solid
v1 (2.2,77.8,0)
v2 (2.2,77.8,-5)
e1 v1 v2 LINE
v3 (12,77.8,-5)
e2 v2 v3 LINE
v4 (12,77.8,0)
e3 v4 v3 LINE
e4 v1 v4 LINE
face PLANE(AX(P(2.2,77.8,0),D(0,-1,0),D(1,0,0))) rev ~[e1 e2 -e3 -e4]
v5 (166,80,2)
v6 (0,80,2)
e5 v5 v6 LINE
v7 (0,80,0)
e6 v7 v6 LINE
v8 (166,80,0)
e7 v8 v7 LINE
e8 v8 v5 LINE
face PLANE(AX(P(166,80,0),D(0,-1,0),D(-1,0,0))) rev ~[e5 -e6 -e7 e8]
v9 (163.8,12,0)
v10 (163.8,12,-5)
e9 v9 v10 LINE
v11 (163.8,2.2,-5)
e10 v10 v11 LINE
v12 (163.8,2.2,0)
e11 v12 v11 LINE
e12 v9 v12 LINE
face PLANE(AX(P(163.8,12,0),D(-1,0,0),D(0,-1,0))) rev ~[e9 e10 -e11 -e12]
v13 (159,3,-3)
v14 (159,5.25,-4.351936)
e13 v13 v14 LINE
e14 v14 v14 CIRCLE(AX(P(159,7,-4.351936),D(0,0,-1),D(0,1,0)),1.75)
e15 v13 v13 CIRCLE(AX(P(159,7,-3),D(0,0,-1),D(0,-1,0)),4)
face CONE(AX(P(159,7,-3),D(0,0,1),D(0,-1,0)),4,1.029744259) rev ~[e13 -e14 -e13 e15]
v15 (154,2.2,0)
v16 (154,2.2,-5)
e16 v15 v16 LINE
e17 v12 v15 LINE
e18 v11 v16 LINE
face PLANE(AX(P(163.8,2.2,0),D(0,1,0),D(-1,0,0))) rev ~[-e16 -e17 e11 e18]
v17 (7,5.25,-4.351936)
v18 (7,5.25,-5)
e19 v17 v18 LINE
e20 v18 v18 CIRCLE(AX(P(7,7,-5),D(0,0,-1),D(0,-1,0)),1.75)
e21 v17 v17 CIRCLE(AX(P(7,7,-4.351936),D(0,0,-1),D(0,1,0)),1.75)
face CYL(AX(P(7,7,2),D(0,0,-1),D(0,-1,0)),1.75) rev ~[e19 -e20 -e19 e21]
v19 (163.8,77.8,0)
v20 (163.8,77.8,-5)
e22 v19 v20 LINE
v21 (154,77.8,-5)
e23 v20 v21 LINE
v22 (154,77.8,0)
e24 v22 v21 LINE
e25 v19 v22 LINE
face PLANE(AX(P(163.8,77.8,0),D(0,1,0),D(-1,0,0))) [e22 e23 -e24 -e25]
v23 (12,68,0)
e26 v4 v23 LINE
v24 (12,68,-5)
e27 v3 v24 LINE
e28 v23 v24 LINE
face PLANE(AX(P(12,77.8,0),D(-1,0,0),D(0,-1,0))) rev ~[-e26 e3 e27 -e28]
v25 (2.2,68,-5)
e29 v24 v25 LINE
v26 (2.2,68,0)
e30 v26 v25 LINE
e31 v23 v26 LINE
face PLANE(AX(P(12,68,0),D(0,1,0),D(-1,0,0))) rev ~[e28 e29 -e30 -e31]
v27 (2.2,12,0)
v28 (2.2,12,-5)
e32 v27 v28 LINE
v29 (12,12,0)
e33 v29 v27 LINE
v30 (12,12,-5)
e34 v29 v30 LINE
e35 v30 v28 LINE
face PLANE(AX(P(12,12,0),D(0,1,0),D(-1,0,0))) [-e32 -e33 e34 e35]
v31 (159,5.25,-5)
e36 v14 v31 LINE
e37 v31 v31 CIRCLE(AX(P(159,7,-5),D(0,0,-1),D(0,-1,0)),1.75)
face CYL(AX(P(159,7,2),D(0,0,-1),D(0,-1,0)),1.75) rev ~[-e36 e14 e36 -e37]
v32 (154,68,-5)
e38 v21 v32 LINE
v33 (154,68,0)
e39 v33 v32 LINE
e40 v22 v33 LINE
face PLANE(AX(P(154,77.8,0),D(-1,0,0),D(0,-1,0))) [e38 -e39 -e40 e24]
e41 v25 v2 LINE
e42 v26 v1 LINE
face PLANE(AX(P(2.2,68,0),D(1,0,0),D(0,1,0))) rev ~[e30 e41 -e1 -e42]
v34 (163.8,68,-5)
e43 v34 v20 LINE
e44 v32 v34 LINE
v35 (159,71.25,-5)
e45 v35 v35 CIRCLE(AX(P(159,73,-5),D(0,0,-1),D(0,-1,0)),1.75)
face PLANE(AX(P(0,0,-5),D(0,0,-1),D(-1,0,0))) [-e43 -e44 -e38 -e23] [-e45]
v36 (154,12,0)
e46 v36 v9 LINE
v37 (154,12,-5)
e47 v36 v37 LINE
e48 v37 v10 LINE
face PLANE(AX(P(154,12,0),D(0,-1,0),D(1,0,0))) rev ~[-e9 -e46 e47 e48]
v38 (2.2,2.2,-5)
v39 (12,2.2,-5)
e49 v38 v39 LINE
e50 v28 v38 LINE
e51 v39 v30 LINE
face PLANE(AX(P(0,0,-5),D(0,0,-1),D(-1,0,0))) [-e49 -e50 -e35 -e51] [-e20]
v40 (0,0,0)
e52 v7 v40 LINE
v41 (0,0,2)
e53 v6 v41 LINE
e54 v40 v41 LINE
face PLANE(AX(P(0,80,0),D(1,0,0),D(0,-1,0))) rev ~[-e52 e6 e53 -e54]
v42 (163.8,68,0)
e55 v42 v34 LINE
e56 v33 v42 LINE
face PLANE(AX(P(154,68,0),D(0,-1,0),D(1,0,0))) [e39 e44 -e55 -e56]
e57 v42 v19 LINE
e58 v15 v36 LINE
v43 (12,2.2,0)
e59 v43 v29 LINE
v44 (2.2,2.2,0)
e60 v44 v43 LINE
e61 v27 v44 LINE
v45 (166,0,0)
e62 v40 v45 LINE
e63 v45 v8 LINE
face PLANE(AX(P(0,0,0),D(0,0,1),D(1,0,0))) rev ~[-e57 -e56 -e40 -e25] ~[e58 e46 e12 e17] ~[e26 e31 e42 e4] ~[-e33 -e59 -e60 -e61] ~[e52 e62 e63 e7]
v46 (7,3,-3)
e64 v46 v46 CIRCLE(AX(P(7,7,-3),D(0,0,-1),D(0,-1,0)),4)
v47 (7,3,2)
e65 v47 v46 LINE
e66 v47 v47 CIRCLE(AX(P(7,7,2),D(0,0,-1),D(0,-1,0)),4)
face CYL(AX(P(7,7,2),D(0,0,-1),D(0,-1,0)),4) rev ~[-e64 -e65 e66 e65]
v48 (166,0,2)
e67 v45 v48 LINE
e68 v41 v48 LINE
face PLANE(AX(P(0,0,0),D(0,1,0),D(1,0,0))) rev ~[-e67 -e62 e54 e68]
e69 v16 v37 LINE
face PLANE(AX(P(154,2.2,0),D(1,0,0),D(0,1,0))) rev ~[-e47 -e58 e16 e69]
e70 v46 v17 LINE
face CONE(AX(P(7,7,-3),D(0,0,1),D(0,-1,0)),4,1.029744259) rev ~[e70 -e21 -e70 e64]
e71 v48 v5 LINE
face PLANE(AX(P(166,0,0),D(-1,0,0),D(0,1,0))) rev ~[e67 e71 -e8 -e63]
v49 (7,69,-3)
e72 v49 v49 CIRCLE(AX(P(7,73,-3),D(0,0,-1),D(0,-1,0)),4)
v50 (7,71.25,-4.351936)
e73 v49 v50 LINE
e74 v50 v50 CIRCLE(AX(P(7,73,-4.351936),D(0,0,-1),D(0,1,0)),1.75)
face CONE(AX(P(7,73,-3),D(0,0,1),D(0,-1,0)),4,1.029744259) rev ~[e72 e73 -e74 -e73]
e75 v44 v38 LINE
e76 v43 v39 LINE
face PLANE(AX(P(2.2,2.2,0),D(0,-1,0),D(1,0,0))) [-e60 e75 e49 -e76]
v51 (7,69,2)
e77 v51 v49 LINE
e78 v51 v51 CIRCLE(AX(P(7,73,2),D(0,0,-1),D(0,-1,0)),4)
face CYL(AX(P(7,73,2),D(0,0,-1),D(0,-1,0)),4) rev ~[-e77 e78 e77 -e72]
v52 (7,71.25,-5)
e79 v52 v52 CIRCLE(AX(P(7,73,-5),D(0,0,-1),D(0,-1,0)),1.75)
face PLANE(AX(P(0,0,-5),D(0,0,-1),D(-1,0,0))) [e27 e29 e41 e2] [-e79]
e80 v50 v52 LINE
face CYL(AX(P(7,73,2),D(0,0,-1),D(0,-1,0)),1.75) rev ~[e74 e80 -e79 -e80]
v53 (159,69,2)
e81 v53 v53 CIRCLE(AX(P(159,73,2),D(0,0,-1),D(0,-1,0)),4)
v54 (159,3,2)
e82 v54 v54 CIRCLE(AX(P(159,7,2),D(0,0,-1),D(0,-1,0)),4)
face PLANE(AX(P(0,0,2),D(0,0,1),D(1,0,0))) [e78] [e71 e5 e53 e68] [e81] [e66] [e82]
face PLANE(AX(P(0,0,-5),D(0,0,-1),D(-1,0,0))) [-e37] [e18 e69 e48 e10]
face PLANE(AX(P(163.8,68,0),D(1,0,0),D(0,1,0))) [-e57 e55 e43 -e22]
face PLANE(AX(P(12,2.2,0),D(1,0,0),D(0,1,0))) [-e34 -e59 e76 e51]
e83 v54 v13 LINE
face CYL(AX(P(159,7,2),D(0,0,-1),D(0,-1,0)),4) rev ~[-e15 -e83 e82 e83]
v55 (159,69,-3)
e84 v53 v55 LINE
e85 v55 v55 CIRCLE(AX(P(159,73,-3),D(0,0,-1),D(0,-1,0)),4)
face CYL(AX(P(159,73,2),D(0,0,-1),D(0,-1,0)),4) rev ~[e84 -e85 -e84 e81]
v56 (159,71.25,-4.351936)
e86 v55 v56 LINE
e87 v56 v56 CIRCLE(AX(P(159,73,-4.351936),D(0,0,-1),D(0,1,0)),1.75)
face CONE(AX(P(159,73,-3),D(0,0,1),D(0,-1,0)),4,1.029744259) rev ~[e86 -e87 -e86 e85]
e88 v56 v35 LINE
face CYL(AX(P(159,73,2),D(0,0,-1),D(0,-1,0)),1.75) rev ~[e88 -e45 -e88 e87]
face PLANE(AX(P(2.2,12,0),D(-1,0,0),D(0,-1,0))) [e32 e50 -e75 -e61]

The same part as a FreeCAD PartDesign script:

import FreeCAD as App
import Part
import Sketcher

V = App.Vector
Q = App.Units.Quantity

doc = App.newDocument("Part")
body = doc.addObject("PartDesign::Body", "Body")

sketch1 = doc.addObject("Sketcher::SketchObject", "Sketch")
body.addObject(sketch1)
sketch1.AttachmentSupport = (doc.XY_Plane, [""])
sketch1.MapMode = "FlatFace"
sketch1.addGeometry(Part.LineSegment(V(0, 80, 0), V(0, 0, 0)), False)
sketch1.addGeometry(Part.LineSegment(V(0, 0, 0), V(166, 0, 0)), False)
sketch1.addGeometry(Part.LineSegment(V(166, 0, 0), V(166, 80, 0)), False)
sketch1.addGeometry(Part.LineSegment(V(166, 80, 0), V(0, 80, 0)), False)
sketch1.addConstraint(Sketcher.Constraint("Coincident", 0, 2, 1, 1))
sketch1.addConstraint(Sketcher.Constraint("Coincident", 1, 2, 2, 1))
sketch1.addConstraint(Sketcher.Constraint("Coincident", 2, 2, 3, 1))
sketch1.addConstraint(Sketcher.Constraint("Coincident", 3, 2, 0, 1))
sketch1.addConstraint(Sketcher.Constraint("Vertical", 0))
sketch1.addConstraint(Sketcher.Constraint("Horizontal", 1))
sketch1.addConstraint(Sketcher.Constraint("Vertical", 2))
sketch1.addConstraint(Sketcher.Constraint("Horizontal", 3))
sketch1.addConstraint(Sketcher.Constraint("Coincident", 0, 2, -1, 1))
sketch1.addConstraint(Sketcher.Constraint("DistanceX", 1, 1, 1, 2, Q("166 mm")))
sketch1.addConstraint(Sketcher.Constraint("DistanceY", 0, 2, 0, 1, Q("80 mm")))
pad1 = doc.addObject("PartDesign::Pad", "Pad")
body.addObject(pad1)
pad1.Profile = sketch1
pad1.Length = 2

sketch2 = doc.addObject("Sketcher::SketchObject", "Sketch001")
body.addObject(sketch2)
sketch2.AttachmentSupport = (doc.XY_Plane, [""])
sketch2.MapMode = "FlatFace"
sketch2.addGeometry(Part.LineSegment(V(2, 68, 0), V(2, 78, 0)), False)
sketch2.addGeometry(Part.LineSegment(V(2, 78, 0), V(12, 78, 0)), False)
sketch2.addGeometry(Part.LineSegment(V(12, 78, 0), V(12, 68, 0)), False)
sketch2.addGeometry(Part.LineSegment(V(12, 68, 0), V(2, 68, 0)), False)
sketch2.addGeometry(Part.LineSegment(V(12, 2, 0), V(2, 2, 0)), False)
sketch2.addGeometry(Part.LineSegment(V(2, 2, 0), V(2, 12, 0)), False)
sketch2.addGeometry(Part.LineSegment(V(2, 12, 0), V(12, 12, 0)), False)
sketch2.addGeometry(Part.LineSegment(V(12, 12, 0), V(12, 2, 0)), False)
sketch2.addGeometry(Part.LineSegment(V(154, 78, 0), V(164, 78, 0)), False)
sketch2.addGeometry(Part.LineSegment(V(164, 78, 0), V(164, 68, 0)), False)
sketch2.addGeometry(Part.LineSegment(V(164, 68, 0), V(154, 68, 0)), False)
sketch2.addGeometry(Part.LineSegment(V(154, 68, 0), V(154, 78, 0)), False)
sketch2.addGeometry(Part.LineSegment(V(164, 12, 0), V(164, 2, 0)), False)
sketch2.addGeometry(Part.LineSegment(V(164, 2, 0), V(154, 2, 0)), False)
sketch2.addGeometry(Part.LineSegment(V(154, 2, 0), V(154, 12, 0)), False)
sketch2.addGeometry(Part.LineSegment(V(154, 12, 0), V(164, 12, 0)), False)
sketch2.addConstraint(Sketcher.Constraint("Coincident", 0, 2, 1, 1))
sketch2.addConstraint(Sketcher.Constraint("Coincident", 1, 2, 2, 1))
sketch2.addConstraint(Sketcher.Constraint("Coincident", 2, 2, 3, 1))
sketch2.addConstraint(Sketcher.Constraint("Coincident", 3, 2, 0, 1))
sketch2.addConstraint(Sketcher.Constraint("Coincident", 4, 2, 5, 1))
sketch2.addConstraint(Sketcher.Constraint("Coincident", 5, 2, 6, 1))
sketch2.addConstraint(Sketcher.Constraint("Coincident", 6, 2, 7, 1))
sketch2.addConstraint(Sketcher.Constraint("Coincident", 7, 2, 4, 1))
sketch2.addConstraint(Sketcher.Constraint("Coincident", 8, 2, 9, 1))
sketch2.addConstraint(Sketcher.Constraint("Coincident", 9, 2, 10, 1))
sketch2.addConstraint(Sketcher.Constraint("Coincident", 10, 2, 11, 1))
sketch2.addConstraint(Sketcher.Constraint("Coincident", 11, 2, 8, 1))
sketch2.addConstraint(Sketcher.Constraint("Coincident", 12, 2, 13, 1))
sketch2.addConstraint(Sketcher.Constraint("Coincident", 13, 2, 14, 1))
sketch2.addConstraint(Sketcher.Constraint("Coincident", 14, 2, 15, 1))
sketch2.addConstraint(Sketcher.Constraint("Coincident", 15, 2, 12, 1))
sketch2.addConstraint(Sketcher.Constraint("Vertical", 0))
sketch2.addConstraint(Sketcher.Constraint("Horizontal", 1))
sketch2.addConstraint(Sketcher.Constraint("Vertical", 2))
sketch2.addConstraint(Sketcher.Constraint("Horizontal", 3))
sketch2.addConstraint(Sketcher.Constraint("Horizontal", 4))
sketch2.addConstraint(Sketcher.Constraint("Vertical", 5))
sketch2.addConstraint(Sketcher.Constraint("Horizontal", 6))
sketch2.addConstraint(Sketcher.Constraint("Vertical", 7))
sketch2.addConstraint(Sketcher.Constraint("Horizontal", 8))
sketch2.addConstraint(Sketcher.Constraint("Vertical", 9))
sketch2.addConstraint(Sketcher.Constraint("Horizontal", 10))
sketch2.addConstraint(Sketcher.Constraint("Vertical", 11))
sketch2.addConstraint(Sketcher.Constraint("Vertical", 12))
sketch2.addConstraint(Sketcher.Constraint("Horizontal", 13))
sketch2.addConstraint(Sketcher.Constraint("Vertical", 14))
sketch2.addConstraint(Sketcher.Constraint("Horizontal", 15))
sketch2.addConstraint(Sketcher.Constraint("Horizontal", 1, 2, 8, 2))
sketch2.addConstraint(Sketcher.Constraint("Horizontal", 3, 2, 9, 2))
sketch2.addConstraint(Sketcher.Constraint("Horizontal", 7, 2, 12, 2))
sketch2.addConstraint(Sketcher.Constraint("Horizontal", 6, 2, 14, 2))
sketch2.addConstraint(Sketcher.Constraint("Vertical", 3, 2, 4, 2))
sketch2.addConstraint(Sketcher.Constraint("Vertical", 2, 2, 6, 2))
sketch2.addConstraint(Sketcher.Constraint("Vertical", 9, 2, 12, 2))
sketch2.addConstraint(Sketcher.Constraint("Vertical", 11, 2, 13, 2))
sketch2.addConstraint(Sketcher.Constraint("Equal", 6, 8))
sketch2.addConstraint(Sketcher.Constraint("Equal", 15, 0))
sketch2.addConstraint(Sketcher.Constraint("Equal", 2, 5))
sketch2.addConstraint(Sketcher.Constraint("DistanceX", 1, 1, 1, 2, Q("9.8 mm")))
sketch2.addConstraint(Sketcher.Constraint("DistanceX", -1, 1, 0, 2, Q("2.2 mm")))
sketch2.addConstraint(Sketcher.Constraint("DistanceY", -1, 1, 4, 2, Q("2.2 mm")))
sketch2.addConstraint(Sketcher.Constraint("DistanceY", -1, 1, 2, 2, Q("68 mm")))
sketch2.addConstraint(Sketcher.Constraint("DistanceX", -1, 1, 10, 2, Q("154 mm")))
pad2 = doc.addObject("PartDesign::Pad", "Pad001")
body.addObject(pad2)
pad2.Profile = sketch2
pad2.Length = 5
pad2.Reversed = True

sketch3 = doc.addObject("Sketcher::SketchObject", "Sketch002")
body.addObject(sketch3)
sketch3.AttachmentSupport = (doc.XY_Plane, [""])
sketch3.MapMode = "FlatFace"
sketch3.AttachmentOffset = App.Placement(V(0, 0, 2), App.Rotation())
sketch3.addGeometry(Part.Circle(V(7, 7, 0), V(0, 0, 1), 1.8), False)
sketch3.addGeometry(Part.Circle(V(7, 73, 0), V(0, 0, 1), 1.8), False)
sketch3.addGeometry(Part.Circle(V(159, 73, 0), V(0, 0, 1), 1.8), False)
sketch3.addGeometry(Part.Circle(V(159, 7, 0), V(0, 0, 1), 1.8), False)
sketch3.addConstraint(Sketcher.Constraint("Equal", 0, 1))
sketch3.addConstraint(Sketcher.Constraint("Equal", 1, 2))
sketch3.addConstraint(Sketcher.Constraint("Equal", 2, 3))
sketch3.addConstraint(Sketcher.Constraint("Horizontal", 1, 3, 2, 3))
sketch3.addConstraint(Sketcher.Constraint("Horizontal", 0, 3, 3, 3))
sketch3.addConstraint(Sketcher.Constraint("Vertical", 0, 3, 1, 3))
sketch3.addConstraint(Sketcher.Constraint("Vertical", 2, 3, 3, 3))
sketch3.addConstraint(Sketcher.Constraint("Diameter", 0, Q("3.5 mm")))
sketch3.addConstraint(Sketcher.Constraint("DistanceX", -1, 1, 0, 3, Q("7 mm")))
sketch3.addConstraint(Sketcher.Constraint("DistanceY", -1, 1, 0, 3, Q("7 mm")))
sketch3.addConstraint(Sketcher.Constraint("DistanceY", -1, 1, 1, 3, Q("73 mm")))
sketch3.addConstraint(Sketcher.Constraint("DistanceX", -1, 1, 2, 3, Q("159 mm")))
doc.recompute()
hole = doc.addObject("PartDesign::Hole", "Hole")
body.addObject(hole)
hole.Profile = sketch3
hole.ThreadType = "None"
hole.Diameter = 3.5
hole.DepthType = "Dimension"
hole.Depth = 8
hole.DrillPoint = "Angled"
hole.DrillPointAngle = 118

sketch4 = doc.addObject("Sketcher::SketchObject", "Sketch003")
body.addObject(sketch4)
sketch4.AttachmentSupport = (doc.XY_Plane, [""])
sketch4.MapMode = "FlatFace"
sketch4.AttachmentOffset = App.Placement(V(0, 0, 2), App.Rotation())
sketch4.addGeometry(Part.Circle(V(7, 7, 0), V(0, 0, 1), 4), False)
sketch4.addGeometry(Part.Circle(V(7, 73, 0), V(0, 0, 1), 4), False)
sketch4.addGeometry(Part.Circle(V(159, 7, 0), V(0, 0, 1), 4), False)
sketch4.addGeometry(Part.Circle(V(159, 73, 0), V(0, 0, 1), 4), False)
sketch4.addConstraint(Sketcher.Constraint("Equal", 0, 1))
sketch4.addConstraint(Sketcher.Constraint("Equal", 1, 2))
sketch4.addConstraint(Sketcher.Constraint("Equal", 2, 3))
sketch4.addConstraint(Sketcher.Constraint("Horizontal", 0, 3, 2, 3))
sketch4.addConstraint(Sketcher.Constraint("Horizontal", 1, 3, 3, 3))
sketch4.addConstraint(Sketcher.Constraint("Vertical", 0, 3, 1, 3))
sketch4.addConstraint(Sketcher.Constraint("Vertical", 2, 3, 3, 3))
sketch4.addConstraint(Sketcher.Constraint("Diameter", 0, Q("8 mm")))
sketch4.addConstraint(Sketcher.Constraint("DistanceX", -1, 1, 0, 3, Q("7 mm")))
sketch4.addConstraint(Sketcher.Constraint("DistanceY", -1, 1, 0, 3, Q("7 mm")))
sketch4.addConstraint(Sketcher.Constraint("DistanceY", -1, 1, 1, 3, Q("73 mm")))
sketch4.addConstraint(Sketcher.Constraint("DistanceX", -1, 1, 2, 3, Q("159 mm")))
doc.recompute()
hole2 = doc.addObject("PartDesign::Hole", "Hole001")
body.addObject(hole2)
hole2.Profile = sketch4
hole2.ThreadType = "None"
hole2.Diameter = 8
hole2.DepthType = "Dimension"
hole2.Depth = 5
hole2.DrillPoint = "Angled"
hole2.DrillPointAngle = 118

doc.recompute()
